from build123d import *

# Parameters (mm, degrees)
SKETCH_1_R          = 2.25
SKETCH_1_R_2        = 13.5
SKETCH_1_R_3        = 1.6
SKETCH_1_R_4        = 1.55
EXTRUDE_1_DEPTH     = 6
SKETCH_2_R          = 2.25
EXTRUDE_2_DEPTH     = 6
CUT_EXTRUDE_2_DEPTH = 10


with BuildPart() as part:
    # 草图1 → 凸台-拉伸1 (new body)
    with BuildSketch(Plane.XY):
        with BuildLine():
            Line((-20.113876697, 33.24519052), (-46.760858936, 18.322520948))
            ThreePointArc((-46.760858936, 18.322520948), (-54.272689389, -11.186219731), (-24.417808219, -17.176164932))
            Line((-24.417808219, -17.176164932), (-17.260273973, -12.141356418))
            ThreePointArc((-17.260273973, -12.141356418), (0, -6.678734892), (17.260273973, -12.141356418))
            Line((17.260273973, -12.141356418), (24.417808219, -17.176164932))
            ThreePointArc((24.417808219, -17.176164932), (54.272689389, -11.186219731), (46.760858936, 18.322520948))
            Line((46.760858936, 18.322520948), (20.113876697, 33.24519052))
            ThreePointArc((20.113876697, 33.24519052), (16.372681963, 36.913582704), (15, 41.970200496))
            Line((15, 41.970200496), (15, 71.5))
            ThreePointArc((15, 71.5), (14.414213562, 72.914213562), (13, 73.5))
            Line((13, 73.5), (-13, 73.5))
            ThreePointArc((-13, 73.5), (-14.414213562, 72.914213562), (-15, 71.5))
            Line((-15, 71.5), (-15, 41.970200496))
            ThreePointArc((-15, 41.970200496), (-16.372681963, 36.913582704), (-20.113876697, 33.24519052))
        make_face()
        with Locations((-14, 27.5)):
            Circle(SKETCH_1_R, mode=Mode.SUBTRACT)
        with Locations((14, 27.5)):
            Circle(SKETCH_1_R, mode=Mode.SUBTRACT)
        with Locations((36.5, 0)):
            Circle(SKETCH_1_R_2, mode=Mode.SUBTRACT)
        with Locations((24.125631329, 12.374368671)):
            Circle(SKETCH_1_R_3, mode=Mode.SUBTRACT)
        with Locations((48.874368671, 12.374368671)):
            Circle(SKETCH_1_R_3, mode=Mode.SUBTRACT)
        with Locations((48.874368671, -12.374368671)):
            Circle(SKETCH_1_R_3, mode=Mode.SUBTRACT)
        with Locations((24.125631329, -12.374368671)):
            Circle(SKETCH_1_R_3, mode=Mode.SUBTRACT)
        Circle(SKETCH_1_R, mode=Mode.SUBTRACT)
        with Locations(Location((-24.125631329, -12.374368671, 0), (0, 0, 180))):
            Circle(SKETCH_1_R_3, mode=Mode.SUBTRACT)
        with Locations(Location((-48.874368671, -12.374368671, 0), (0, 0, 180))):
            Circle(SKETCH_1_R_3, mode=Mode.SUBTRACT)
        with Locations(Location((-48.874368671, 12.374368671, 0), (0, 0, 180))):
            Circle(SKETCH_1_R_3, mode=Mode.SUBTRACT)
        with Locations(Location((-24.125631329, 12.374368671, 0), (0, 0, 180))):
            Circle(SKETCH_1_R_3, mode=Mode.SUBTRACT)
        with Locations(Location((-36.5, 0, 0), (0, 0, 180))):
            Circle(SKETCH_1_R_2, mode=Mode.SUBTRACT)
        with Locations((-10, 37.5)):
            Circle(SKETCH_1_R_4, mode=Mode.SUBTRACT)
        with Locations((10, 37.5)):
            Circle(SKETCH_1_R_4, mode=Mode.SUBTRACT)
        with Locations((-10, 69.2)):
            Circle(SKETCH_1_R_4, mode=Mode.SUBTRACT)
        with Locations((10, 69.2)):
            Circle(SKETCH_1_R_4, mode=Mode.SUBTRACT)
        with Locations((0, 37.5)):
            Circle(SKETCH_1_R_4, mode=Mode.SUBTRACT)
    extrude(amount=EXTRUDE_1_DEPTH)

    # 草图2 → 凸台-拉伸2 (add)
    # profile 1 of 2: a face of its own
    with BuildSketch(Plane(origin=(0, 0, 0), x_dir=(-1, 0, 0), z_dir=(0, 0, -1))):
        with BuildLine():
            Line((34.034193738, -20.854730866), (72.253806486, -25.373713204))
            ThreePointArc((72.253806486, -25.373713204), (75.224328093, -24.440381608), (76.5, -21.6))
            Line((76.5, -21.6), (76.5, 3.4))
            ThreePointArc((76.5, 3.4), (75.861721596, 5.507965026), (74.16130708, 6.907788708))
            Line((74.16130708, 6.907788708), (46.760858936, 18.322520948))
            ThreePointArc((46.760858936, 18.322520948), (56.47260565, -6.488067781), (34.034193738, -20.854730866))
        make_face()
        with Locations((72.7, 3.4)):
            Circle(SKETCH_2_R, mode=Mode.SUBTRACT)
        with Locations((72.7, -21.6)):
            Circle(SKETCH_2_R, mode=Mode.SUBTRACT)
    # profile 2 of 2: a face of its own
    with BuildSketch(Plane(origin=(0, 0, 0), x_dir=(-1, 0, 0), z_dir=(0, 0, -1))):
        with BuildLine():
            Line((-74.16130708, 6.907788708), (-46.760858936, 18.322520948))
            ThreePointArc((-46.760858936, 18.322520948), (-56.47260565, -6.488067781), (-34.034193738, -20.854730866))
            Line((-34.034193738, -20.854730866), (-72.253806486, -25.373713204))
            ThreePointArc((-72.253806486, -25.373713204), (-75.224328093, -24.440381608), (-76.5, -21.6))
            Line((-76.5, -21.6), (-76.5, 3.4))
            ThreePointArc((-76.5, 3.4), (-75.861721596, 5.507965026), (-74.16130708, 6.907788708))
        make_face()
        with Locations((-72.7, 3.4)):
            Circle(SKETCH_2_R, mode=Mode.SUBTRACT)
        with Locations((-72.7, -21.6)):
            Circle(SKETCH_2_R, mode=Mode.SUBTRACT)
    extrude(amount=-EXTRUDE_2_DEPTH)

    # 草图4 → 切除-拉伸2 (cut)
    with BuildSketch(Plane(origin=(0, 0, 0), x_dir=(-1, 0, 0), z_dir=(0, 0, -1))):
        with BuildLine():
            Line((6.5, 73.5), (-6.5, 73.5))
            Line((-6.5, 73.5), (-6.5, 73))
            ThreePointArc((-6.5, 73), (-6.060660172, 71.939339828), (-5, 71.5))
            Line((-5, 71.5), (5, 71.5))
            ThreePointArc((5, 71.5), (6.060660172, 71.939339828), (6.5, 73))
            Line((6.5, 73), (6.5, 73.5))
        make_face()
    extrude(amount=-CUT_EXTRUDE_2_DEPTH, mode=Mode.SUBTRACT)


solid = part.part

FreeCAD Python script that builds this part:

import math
import FreeCAD as App
import Part
import Sketcher

V = App.Vector

doc = App.newDocument("Part")
params = doc.addObject("Spreadsheet::Sheet", "Params")
for row, (alias, value) in enumerate([
    ("sketch1_diameter", "27 mm"),
    ("sketch1_radius", "21 mm"),
    ("sketch1_radius2", "30 mm"),
    ("sketch1_radius3", "10 mm"),
    ("sketch1_radius4", "2 mm"),
    ("pad1_length", "6 mm"),
    ("sketch2_radius", "21 mm"),
    ("sketch2_radius2", "21 mm"),
    ("sketch2_diameter", "4.5 mm"),
    ("sketch2_diameter2", "4.5 mm"),
    ("sketch2_diameter3", "4.5 mm"),
    ("pad2_length", "6 mm"),
    ("sketch3_radius", "1.5 mm"),
    ("sketch3_width", "13 mm"),
    ("sketch3_height", "0.5 mm"),
    ("pocket1_length", "10 mm"),
], start=1):
    params.set(f"A{row}", alias)
    params.set(f"B{row}", "=" + value)
    params.setAlias(f"B{row}", alias)

body = doc.addObject("PartDesign::Body", "Body")

# Sketch on XY plane
sketch1 = doc.addObject("Sketcher::SketchObject", "Sketch")
body.addObject(sketch1)
sketch1.AttachmentSupport = (doc.XY_Plane, [""])
sketch1.MapMode = "FlatFace"
sketch1.addGeometry(Part.LineSegment(V(-20.113877, 33.245191, 0), V(-46.760859, 18.322521, 0)), False)
sketch1.addGeometry(Part.ArcOfCircle(Part.Circle(V(-36.5, 0, 0), V(0, 0, 1), 21), math.radians(119.249415), math.radians(305.123619)), False)
sketch1.addGeometry(Part.LineSegment(V(-24.417808, -17.176165, 0), V(-17.260274, -12.141356, 0)), False)
sketch1.addGeometry(Part.ArcOfCircle(Part.Circle(V(0, -36.678735, 0), V(0, 0, 1), 30), math.radians(54.876381), math.radians(125.123619)), False)
sketch1.addGeometry(Part.LineSegment(V(17.260274, -12.141356, 0), V(24.417808, -17.176165, 0)), False)
sketch1.addGeometry(Part.ArcOfCircle(Part.Circle(V(36.5, 0, 0), V(0, 0, 1), 21), math.radians(-125.123619), math.radians(60.750585)), False)
sketch1.addGeometry(Part.LineSegment(V(46.760859, 18.322521, 0), V(20.113877, 33.245191, 0)), False)
sketch1.addGeometry(Part.ArcOfCircle(Part.Circle(V(25, 41.9702, 0), V(0, 0, 1), 10), math.radians(180), math.radians(240.750585)), False)
sketch1.addGeometry(Part.LineSegment(V(15, 41.9702, 0), V(15, 71.5, 0)), False)
sketch1.addGeometry(Part.ArcOfCircle(Part.Circle(V(13, 71.5, 0), V(0, 0, 1), 2), math.radians(0), math.radians(90)), False)
sketch1.addGeometry(Part.LineSegment(V(13, 73.5, 0), V(-13, 73.5, 0)), False)
sketch1.addGeometry(Part.ArcOfCircle(Part.Circle(V(-13, 71.5, 0), V(0, 0, 1), 2), math.radians(90), math.radians(180)), False)
sketch1.addGeometry(Part.LineSegment(V(-15, 71.5, 0), V(-15, 41.9702, 0)), False)
sketch1.addGeometry(Part.ArcOfCircle(Part.Circle(V(-25, 41.9702, 0), V(0, 0, 1), 10), math.radians(-60.750585), math.radians(0)), False)
sketch1.addGeometry(Part.Circle(V(-48.874369, -12.374369, 0), V(0, 0, 1), 1.6), False)
sketch1.addGeometry(Part.Circle(V(-36.5, 0, 0), V(0, 0, 1), 13.5), False)
sketch1.addGeometry(Part.Circle(V(-24.125631, -12.374369, 0), V(0, 0, 1), 1.6), False)
sketch1.addGeometry(Part.Circle(V(-48.874369, 12.374369, 0), V(0, 0, 1), 1.6), False)
sketch1.addGeometry(Part.Circle(V(-24.125631, 12.374369, 0), V(0, 0, 1), 1.6), False)
sketch1.addGeometry(Part.Circle(V(-14, 27.5, 0), V(0, 0, 1), 2.25), False)
sketch1.addGeometry(Part.Circle(V(24.125631, -12.374369, 0), V(0, 0, 1), 1.6), False)
sketch1.addGeometry(Part.Circle(V(0, 0, 0), V(0, 0, 1), 2.25), False)
sketch1.addGeometry(Part.Circle(V(48.874369, -12.374369, 0), V(0, 0, 1), 1.6), False)
sketch1.addGeometry(Part.Circle(V(36.5, 0, 0), V(0, 0, 1), 13.5), False)
sketch1.addGeometry(Part.Circle(V(24.125631, 12.374369, 0), V(0, 0, 1), 1.6), False)
sketch1.addGeometry(Part.Circle(V(14, 27.5, 0), V(0, 0, 1), 2.25), False)
sketch1.addGeometry(Part.Circle(V(48.874369, 12.374369, 0), V(0, 0, 1), 1.6), False)
sketch1.addGeometry(Part.Circle(V(-10, 37.5, 0), V(0, 0, 1), 1.55), False)
sketch1.addGeometry(Part.Circle(V(-10, 69.2, 0), V(0, 0, 1), 1.55), False)
sketch1.addGeometry(Part.Circle(V(0, 37.5, 0), V(0, 0, 1), 1.55), False)
sketch1.addGeometry(Part.Circle(V(10, 37.5, 0), V(0, 0, 1), 1.55), False)
sketch1.addGeometry(Part.Circle(V(10, 69.2, 0), V(0, 0, 1), 1.55), False)
sketch1.addConstraint(Sketcher.Constraint("Tangent", 0, 2, 1, 1))
sketch1.addConstraint(Sketcher.Constraint("Tangent", 1, 2, 2, 1))
sketch1.addConstraint(Sketcher.Constraint("Tangent", 2, 2, 3, 2))
sketch1.addConstraint(Sketcher.Constraint("Tangent", 3, 1, 4, 1))
sketch1.addConstraint(Sketcher.Constraint("Tangent", 4, 2, 5, 1))
sketch1.addConstraint(Sketcher.Constraint("Tangent", 5, 2, 6, 1))
sketch1.addConstraint(Sketcher.Constraint("Tangent", 6, 2, 7, 2))
sketch1.addConstraint(Sketcher.Constraint("Tangent", 7, 1, 8, 1))
sketch1.addConstraint(Sketcher.Constraint("Tangent", 8, 2, 9, 1))
sketch1.addConstraint(Sketcher.Constraint("Tangent", 9, 2, 10, 1))
sketch1.addConstraint(Sketcher.Constraint("Tangent", 10, 2, 11, 1))
sketch1.addConstraint(Sketcher.Constraint("Tangent", 11, 2, 12, 1))
sketch1.addConstraint(Sketcher.Constraint("Tangent", 12, 2, 13, 2))
sketch1.addConstraint(Sketcher.Constraint("Tangent", 13, 1, 0, 1))
sketch1.addConstraint(Sketcher.Constraint("Vertical", 8))
sketch1.addConstraint(Sketcher.Constraint("Horizontal", 10))
sketch1.addConstraint(Sketcher.Constraint("Vertical", 12))
sketch1.addConstraint(Sketcher.Constraint("Coincident", 21, 3, -1, 1))
sketch1.addConstraint(Sketcher.Constraint("Coincident", 15, 3, 1, 3))
sketch1.addConstraint(Sketcher.Constraint("Coincident", 23, 3, 5, 3))
sketch1.addConstraint(Sketcher.Constraint("Equal", 1, 5))
sketch1.addConstraint(Sketcher.Constraint("Equal", 9, 11))
sketch1.addConstraint(Sketcher.Constraint("Equal", 7, 13))
sketch1.addConstraint(Sketcher.Constraint("Equal", 14, 16))
sketch1.addConstraint(Sketcher.Constraint("Equal", 16, 17))
sketch1.addConstraint(Sketcher.Constraint("Equal", 17, 18))
sketch1.addConstraint(Sketcher.Constraint("Equal", 18, 20))
sketch1.addConstraint(Sketcher.Constraint("Equal", 19, 21))
sketch1.addConstraint(Sketcher.Constraint("Equal", 20, 22))
sketch1.addConstraint(Sketcher.Constraint("Equal", 15, 23))
sketch1.addConstraint(Sketcher.Constraint("Equal", 22, 24))
sketch1.addConstraint(Sketcher.Constraint("Equal", 21, 25))
sketch1.addConstraint(Sketcher.Constraint("Equal", 24, 26))
sketch1.addConstraint(Sketcher.Constraint("Equal", 27, 28))
sketch1.addConstraint(Sketcher.Constraint("Equal", 28, 29))
sketch1.addConstraint(Sketcher.Constraint("Equal", 29, 30))
sketch1.addConstraint(Sketcher.Constraint("Equal", 30, 31))
sketch1.addConstraint(Sketcher.Constraint("Symmetric", 1, 3, 5, 3, -1, 1))
sketch1.addConstraint(Sketcher.Constraint("Symmetric", 18, 3, 20, 3, -1, 1))
sketch1.addConstraint(Sketcher.Constraint("Symmetric", 17, 3, 22, 3, -1, 1))
sketch1.addConstraint(Sketcher.Constraint("Symmetric", 16, 3, 24, 3, -1, 1))
sketch1.addConstraint(Sketcher.Constraint("Symmetric", 14, 3, 26, 3, -1, 1))
sketch1.addConstraint(Sketcher.Constraint("Symmetric", 7, 3, 13, 3, -2))
sketch1.addConstraint(Sketcher.Constraint("Symmetric", 16, 3, 20, 3, -2))
sketch1.addConstraint(Sketcher.Constraint("Symmetric", 14, 3, 22, 3, -2))
sketch1.addConstraint(Sketcher.Constraint("Symmetric", 19, 3, 25, 3, -2))
sketch1.addConstraint(Sketcher.Constraint("Symmetric", 27, 3, 30, 3, -2))
sketch1.addConstraint(Sketcher.Constraint("Symmetric", 28, 3, 31, 3, -2))
sketch1.addConstraint(Sketcher.Constraint("Symmetric", 2, 2, 3, 1, -2))
sketch1.addConstraint(Sketcher.Constraint("PointOnObject", 29, 3, -2))
sketch1.addConstraint(Sketcher.Constraint("Horizontal", 14, 3, 16, 3))
sketch1.addConstraint(Sketcher.Constraint("Horizontal", 27, 3, 29, 3))
sketch1.addConstraint(Sketcher.Constraint("Vertical", 27, 3, 28, 3))
sketch1.addConstraint(Sketcher.Constraint("Diameter", 15, 27.0))
sketch1.addConstraint(Sketcher.Constraint("Radius", 1, 21.0))
sketch1.addConstraint(Sketcher.Constraint("Radius", 3, 30.0))
sketch1.addConstraint(Sketcher.Constraint("Radius", 7, 10.0))
sketch1.addConstraint(Sketcher.Constraint("Radius", 9, 2.0))
sketch1.addConstraint(Sketcher.Constraint("Diameter", 14, 3.2))
sketch1.addConstraint(Sketcher.Constraint("Diameter", 19, 4.5))
sketch1.addConstraint(Sketcher.Constraint("Diameter", 27, 3.1))
sketch1.addConstraint(Sketcher.Constraint("DistanceX", 10, 2, 10, 1, 26.0))
sketch1.addConstraint(Sketcher.Constraint("DistanceX", 19, 3, -1, 1, 14.0))
sketch1.addConstraint(Sketcher.Constraint("DistanceX", 27, 3, -1, 1, 10.0))
sketch1.addConstraint(Sketcher.Constraint("DistanceX", 1, 3, 5, 3, 73.0))
sketch1.addConstraint(Sketcher.Constraint("DistanceY", 19, 3, 27, 3, 10.0))
sketch1.addConstraint(Sketcher.Constraint("DistanceY", 27, 3, 11, 3, 34.0))
sketch1.addConstraint(Sketcher.Constraint("DistanceY", -1, 1, 9, 3, 71.5))
sketch1.addConstraint(Sketcher.Constraint("DistanceY", -1, 1, 28, 3, 69.2))
sketch1.addConstraint(Sketcher.Constraint("DistanceY", 8, 1, 8, 2, 29.5298))
sketch1.addConstraint(Sketcher.Constraint("DistanceX", 14, 3, -1, 1, 48.874369))
sketch1.addConstraint(Sketcher.Constraint("DistanceY", 14, 3, -1, 1, 12.374369))
sketch1.addConstraint(Sketcher.Constraint("DistanceX", 16, 3, -1, 1, 24.125631))
sketch1.addConstraint(Sketcher.Constraint("DistanceX", 1, 2, -1, 1, 24.417808))
sketch1.setExpression("Constraints[53]", "Params.sketch1_diameter")
sketch1.setExpression("Constraints[54]", "Params.sketch1_radius")
sketch1.setExpression("Constraints[55]", "Params.sketch1_radius2")
sketch1.setExpression("Constraints[56]", "Params.sketch1_radius3")
sketch1.setExpression("Constraints[57]", "Params.sketch1_radius4")
pad1 = doc.addObject("PartDesign::Pad", "Pad")
body.addObject(pad1)
pad1.Profile = sketch1
pad1.setExpression("Length", "Params.pad1_length")

# Sketch on XY plane
sketch2 = doc.addObject("Sketcher::SketchObject", "Sketch001")
body.addObject(sketch2)
sketch2.AttachmentSupport = (doc.XY_Plane, [""])
sketch2.MapMode = "FlatFace"
sketch2.addGeometry(Part.LineSegment(V(-34.034194, -20.854731, 0), V(-72.253806, -25.373713, 0)), False)
sketch2.addGeometry(Part.ArcOfCircle(Part.Circle(V(-72.7, -21.6, 0), V(0, 0, 1), 3.8), math.radians(180), math.radians(276.743189)), False)
sketch2.addGeometry(Part.LineSegment(V(-76.5, -21.6, 0), V(-76.5, 3.4, 0)), False)
sketch2.addGeometry(Part.ArcOfCircle(Part.Circle(V(-72.7, 3.4, 0), V(0, 0, 1), 3.8), math.radians(112.616086), math.radians(180)), False)
sketch2.addGeometry(Part.LineSegment(V(-74.161307, 6.907789, 0), V(-46.760859, 18.322521, 0)), False)
sketch2.addGeometry(Part.ArcOfCircle(Part.Circle(V(-36.5, 0, 0), V(0, 0, 1), 21), math.radians(119.249415), math.radians(276.743189)), False)
sketch2.addGeometry(Part.Circle(V(-72.7, -21.6, 0), V(0, 0, 1), 2.25), False)
sketch2.addGeometry(Part.Circle(V(-72.7, 3.4, 0), V(0, 0, 1), 2.25), False)
sketch2.addGeometry(Part.LineSegment(V(46.760859, 18.322521, 0), V(74.161307, 6.907789, 0)), False)
sketch2.addGeometry(Part.ArcOfCircle(Part.Circle(V(72.7, 3.4, 0), V(0, 0, 1), 3.8), math.radians(0), math.radians(67.383914)), False)
sketch2.addGeometry(Part.LineSegment(V(76.5, 3.4, 0), V(76.5, -21.6, 0)), False)
sketch2.addGeometry(Part.ArcOfCircle(Part.Circle(V(72.7, -21.6, 0), V(0, 0, 1), 3.8), math.radians(-96.743189), math.radians(0)), False)
sketch2.addGeometry(Part.LineSegment(V(72.253806, -25.373713, 0), V(34.034194, -20.854731, 0)), False)
sketch2.addGeometry(Part.ArcOfCircle(Part.Circle(V(36.5, 0, 0), V(0, 0, 1), 21), math.radians(-96.743189), math.radians(60.750585)), False)
sketch2.addGeometry(Part.Circle(V(72.7, -21.6, 0), V(0, 0, 1), 2.25), False)
sketch2.addGeometry(Part.Circle(V(72.7, 3.4, 0), V(0, 0, 1), 2.25), False)
sketch2.addConstraint(Sketcher.Constraint("Coincident", 0, 2, 1, 2))
sketch2.addConstraint(Sketcher.Constraint("Coincident", 1, 1, 2, 1))
sketch2.addConstraint(Sketcher.Constraint("Coincident", 2, 2, 3, 2))
sketch2.addConstraint(Sketcher.Constraint("Coincident", 3, 1, 4, 1))
sketch2.addConstraint(Sketcher.Constraint("Coincident", 4, 2, 5, 1))
sketch2.addConstraint(Sketcher.Constraint("Coincident", 5, 2, 0, 1))
sketch2.addConstraint(Sketcher.Constraint("Coincident", 8, 2, 9, 2))
sketch2.addConstraint(Sketcher.Constraint("Coincident", 9, 1, 10, 1))
sketch2.addConstraint(Sketcher.Constraint("Coincident", 10, 2, 11, 2))
sketch2.addConstraint(Sketcher.Constraint("Coincident", 11, 1, 12, 1))
sketch2.addConstraint(Sketcher.Constraint("Coincident", 12, 2, 13, 1))
sketch2.addConstraint(Sketcher.Constraint("Coincident", 13, 2, 8, 1))
sketch2.addConstraint(Sketcher.Constraint("Vertical", 2))
sketch2.addConstraint(Sketcher.Constraint("Vertical", 10))
sketch2.addConstraint(Sketcher.Constraint("Coincident", 6, 3, 1, 3))
sketch2.addConstraint(Sketcher.Constraint("Coincident", 7, 3, 3, 3))
sketch2.addConstraint(Sketcher.Constraint("Coincident", 14, 3, 11, 3))
sketch2.addConstraint(Sketcher.Constraint("Coincident", 15, 3, 9, 3))
sketch2.addConstraint(Sketcher.Constraint("PointOnObject", 5, 3, -1))
sketch2.addConstraint(Sketcher.Constraint("PointOnObject", 13, 3, -1))
sketch2.addConstraint(Sketcher.Constraint("Radius", 5, 21.0))
sketch2.addConstraint(Sketcher.Constraint("Radius", 13, 21.0))
sketch2.addConstraint(Sketcher.Constraint("Diameter", 6, 4.5))
sketch2.addConstraint(Sketcher.Constraint("Diameter", 7, 4.5))
sketch2.addConstraint(Sketcher.Constraint("Diameter", 14, 4.5))
sketch2.addConstraint(Sketcher.Constraint("Diameter", 15, 4.5))
sketch2.addConstraint(Sketcher.Constraint("Radius", 1, 3.8))
sketch2.addConstraint(Sketcher.Constraint("Radius", 3, 3.8))
sketch2.addConstraint(Sketcher.Constraint("Radius", 9, 3.8))
sketch2.addConstraint(Sketcher.Constraint("Radius", 11, 3.8))
sketch2.addConstraint(Sketcher.Constraint("DistanceY", 2, 1, 2, 2, 25.0))
sketch2.addConstraint(Sketcher.Constraint("DistanceY", 10, 2, 10, 1, 25.0))
sketch2.addConstraint(Sketcher.Constraint("DistanceY", 1, 3, 3, 3, 25.0))
sketch2.addConstraint(Sketcher.Constraint("DistanceY", 1, 3, 9, 3, 25.0))
sketch2.addConstraint(Sketcher.Constraint("DistanceY", 11, 3, 9, 3, 25.0))
sketch2.addConstraint(Sketcher.Constraint("DistanceX", 5, 3, 13, 3, 73.0))
sketch2.addConstraint(Sketcher.Constraint("DistanceY", 1, 1, 3, 3, 25.0))
sketch2.addConstraint(Sketcher.Constraint("DistanceY", 11, 3, 9, 1, 25.0))
sketch2.addConstraint(Sketcher.Constraint("DistanceX", 1, 3, -1, 1, 72.7))
sketch2.addConstraint(Sketcher.Constraint("DistanceY", 1, 3, -1, 1, 21.6))
sketch2.addConstraint(Sketcher.Constraint("DistanceX", 5, 3, -1, 1, 36.5))
sketch2.addConstraint(Sketcher.Constraint("DistanceX", -1, 1, 9, 3, 72.7))
sketch2.addConstraint(Sketcher.Constraint("Distance", 0, 38.485842))
sketch2.addConstraint(Sketcher.Constraint("Distance", 12, 38.485842))
sketch2.addConstraint(Sketcher.Constraint("DistanceY", -1, 1, 3, 1, 6.907789))
sketch2.addConstraint(Sketcher.Constraint("DistanceX", 4, 2, -1, 1, 46.760859))
sketch2.addConstraint(Sketcher.Constraint("DistanceY", 5, 2, -1, 1, 20.854731))
sketch2.addConstraint(Sketcher.Constraint("DistanceY", -1, 1, 8, 2, 6.907789))
sketch2.addConstraint(Sketcher.Constraint("DistanceY", 12, 2, -1, 1, 20.854731))
sketch2.addConstraint(Sketcher.Constraint("DistanceX", -1, 1, 13, 2, 46.760859))
sketch2.setExpression("Constraints[20]", "Params.sketch2_radius")
sketch2.setExpression("Constraints[21]", "Params.sketch2_radius2")
sketch2.setExpression("Constraints[22]", "Params.sketch2_diameter")
sketch2.setExpression("Constraints[23]", "Params.sketch2_diameter2")
sketch2.setExpression("Constraints[24]", "Params.sketch2_diameter3")
pad2 = doc.addObject("PartDesign::Pad", "Pad001")
body.addObject(pad2)
pad2.Profile = sketch2
pad2.setExpression("Length", "Params.pad2_length")

# Sketch on XY plane
sketch3 = doc.addObject("Sketcher::SketchObject", "Sketch002")
body.addObject(sketch3)
sketch3.AttachmentSupport = (doc.XY_Plane, [""])
sketch3.MapMode = "FlatFace"
sketch3.addGeometry(Part.LineSegment(V(-6.5, 73.5, 0), V(6.5, 73.5, 0)), False)
sketch3.addGeometry(Part.LineSegment(V(6.5, 73.5, 0), V(6.5, 73, 0)), False)
sketch3.addGeometry(Part.ArcOfCircle(Part.Circle(V(5, 73, 0), V(0, 0, 1), 1.5), math.radians(-90), math.radians(0)), False)
sketch3.addGeometry(Part.LineSegment(V(5, 71.5, 0), V(-5, 71.5, 0)), False)
sketch3.addGeometry(Part.ArcOfCircle(Part.Circle(V(-5, 73, 0), V(0, 0, 1), 1.5), math.radians(180), math.radians(270)), False)
sketch3.addGeometry(Part.LineSegment(V(-6.5, 73, 0), V(-6.5, 73.5, 0)), False)
sketch3.addConstraint(Sketcher.Constraint("Coincident", 0, 2, 1, 1))
sketch3.addConstraint(Sketcher.Constraint("Tangent", 1, 2, 2, 2))
sketch3.addConstraint(Sketcher.Constraint("Tangent", 2, 1, 3, 1))
sketch3.addConstraint(Sketcher.Constraint("Tangent", 3, 2, 4, 2))
sketch3.addConstraint(Sketcher.Constraint("Tangent", 4, 1, 5, 1))
sketch3.addConstraint(Sketcher.Constraint("Coincident", 5, 2, 0, 1))
sketch3.addConstraint(Sketcher.Constraint("Horizontal", 0))
sketch3.addConstraint(Sketcher.Constraint("Vertical", 1))
sketch3.addConstraint(Sketcher.Constraint("Horizontal", 3))
sketch3.addConstraint(Sketcher.Constraint("Vertical", 5))
sketch3.addConstraint(Sketcher.Constraint("Equal", 2, 4))
sketch3.addConstraint(Sketcher.Constraint("Radius", 2, 1.5))
sketch3.addConstraint(Sketcher.Constraint("DistanceX", 0, 1, 0, 2, 13.0))
sketch3.addConstraint(Sketcher.Constraint("DistanceY", 1, 2, 1, 1, 0.5))
sketch3.addConstraint(Sketcher.Constraint("DistanceX", -1, 1, 2, 3, 5.0))
sketch3.addConstraint(Sketcher.Constraint("DistanceY", -1, 1, 2, 3, 73.0))
sketch3.setExpression("Constraints[11]", "Params.sketch3_radius")
sketch3.setExpression("Constraints[12]", "Params.sketch3_width")
sketch3.setExpression("Constraints[13]", "Params.sketch3_height")
pocket1 = doc.addObject("PartDesign::Pocket", "Pocket")
body.addObject(pocket1)
pocket1.Profile = sketch3
pocket1.setExpression("Length", "Params.pocket1_length")
pocket1.Reversed = True

doc.recompute()
